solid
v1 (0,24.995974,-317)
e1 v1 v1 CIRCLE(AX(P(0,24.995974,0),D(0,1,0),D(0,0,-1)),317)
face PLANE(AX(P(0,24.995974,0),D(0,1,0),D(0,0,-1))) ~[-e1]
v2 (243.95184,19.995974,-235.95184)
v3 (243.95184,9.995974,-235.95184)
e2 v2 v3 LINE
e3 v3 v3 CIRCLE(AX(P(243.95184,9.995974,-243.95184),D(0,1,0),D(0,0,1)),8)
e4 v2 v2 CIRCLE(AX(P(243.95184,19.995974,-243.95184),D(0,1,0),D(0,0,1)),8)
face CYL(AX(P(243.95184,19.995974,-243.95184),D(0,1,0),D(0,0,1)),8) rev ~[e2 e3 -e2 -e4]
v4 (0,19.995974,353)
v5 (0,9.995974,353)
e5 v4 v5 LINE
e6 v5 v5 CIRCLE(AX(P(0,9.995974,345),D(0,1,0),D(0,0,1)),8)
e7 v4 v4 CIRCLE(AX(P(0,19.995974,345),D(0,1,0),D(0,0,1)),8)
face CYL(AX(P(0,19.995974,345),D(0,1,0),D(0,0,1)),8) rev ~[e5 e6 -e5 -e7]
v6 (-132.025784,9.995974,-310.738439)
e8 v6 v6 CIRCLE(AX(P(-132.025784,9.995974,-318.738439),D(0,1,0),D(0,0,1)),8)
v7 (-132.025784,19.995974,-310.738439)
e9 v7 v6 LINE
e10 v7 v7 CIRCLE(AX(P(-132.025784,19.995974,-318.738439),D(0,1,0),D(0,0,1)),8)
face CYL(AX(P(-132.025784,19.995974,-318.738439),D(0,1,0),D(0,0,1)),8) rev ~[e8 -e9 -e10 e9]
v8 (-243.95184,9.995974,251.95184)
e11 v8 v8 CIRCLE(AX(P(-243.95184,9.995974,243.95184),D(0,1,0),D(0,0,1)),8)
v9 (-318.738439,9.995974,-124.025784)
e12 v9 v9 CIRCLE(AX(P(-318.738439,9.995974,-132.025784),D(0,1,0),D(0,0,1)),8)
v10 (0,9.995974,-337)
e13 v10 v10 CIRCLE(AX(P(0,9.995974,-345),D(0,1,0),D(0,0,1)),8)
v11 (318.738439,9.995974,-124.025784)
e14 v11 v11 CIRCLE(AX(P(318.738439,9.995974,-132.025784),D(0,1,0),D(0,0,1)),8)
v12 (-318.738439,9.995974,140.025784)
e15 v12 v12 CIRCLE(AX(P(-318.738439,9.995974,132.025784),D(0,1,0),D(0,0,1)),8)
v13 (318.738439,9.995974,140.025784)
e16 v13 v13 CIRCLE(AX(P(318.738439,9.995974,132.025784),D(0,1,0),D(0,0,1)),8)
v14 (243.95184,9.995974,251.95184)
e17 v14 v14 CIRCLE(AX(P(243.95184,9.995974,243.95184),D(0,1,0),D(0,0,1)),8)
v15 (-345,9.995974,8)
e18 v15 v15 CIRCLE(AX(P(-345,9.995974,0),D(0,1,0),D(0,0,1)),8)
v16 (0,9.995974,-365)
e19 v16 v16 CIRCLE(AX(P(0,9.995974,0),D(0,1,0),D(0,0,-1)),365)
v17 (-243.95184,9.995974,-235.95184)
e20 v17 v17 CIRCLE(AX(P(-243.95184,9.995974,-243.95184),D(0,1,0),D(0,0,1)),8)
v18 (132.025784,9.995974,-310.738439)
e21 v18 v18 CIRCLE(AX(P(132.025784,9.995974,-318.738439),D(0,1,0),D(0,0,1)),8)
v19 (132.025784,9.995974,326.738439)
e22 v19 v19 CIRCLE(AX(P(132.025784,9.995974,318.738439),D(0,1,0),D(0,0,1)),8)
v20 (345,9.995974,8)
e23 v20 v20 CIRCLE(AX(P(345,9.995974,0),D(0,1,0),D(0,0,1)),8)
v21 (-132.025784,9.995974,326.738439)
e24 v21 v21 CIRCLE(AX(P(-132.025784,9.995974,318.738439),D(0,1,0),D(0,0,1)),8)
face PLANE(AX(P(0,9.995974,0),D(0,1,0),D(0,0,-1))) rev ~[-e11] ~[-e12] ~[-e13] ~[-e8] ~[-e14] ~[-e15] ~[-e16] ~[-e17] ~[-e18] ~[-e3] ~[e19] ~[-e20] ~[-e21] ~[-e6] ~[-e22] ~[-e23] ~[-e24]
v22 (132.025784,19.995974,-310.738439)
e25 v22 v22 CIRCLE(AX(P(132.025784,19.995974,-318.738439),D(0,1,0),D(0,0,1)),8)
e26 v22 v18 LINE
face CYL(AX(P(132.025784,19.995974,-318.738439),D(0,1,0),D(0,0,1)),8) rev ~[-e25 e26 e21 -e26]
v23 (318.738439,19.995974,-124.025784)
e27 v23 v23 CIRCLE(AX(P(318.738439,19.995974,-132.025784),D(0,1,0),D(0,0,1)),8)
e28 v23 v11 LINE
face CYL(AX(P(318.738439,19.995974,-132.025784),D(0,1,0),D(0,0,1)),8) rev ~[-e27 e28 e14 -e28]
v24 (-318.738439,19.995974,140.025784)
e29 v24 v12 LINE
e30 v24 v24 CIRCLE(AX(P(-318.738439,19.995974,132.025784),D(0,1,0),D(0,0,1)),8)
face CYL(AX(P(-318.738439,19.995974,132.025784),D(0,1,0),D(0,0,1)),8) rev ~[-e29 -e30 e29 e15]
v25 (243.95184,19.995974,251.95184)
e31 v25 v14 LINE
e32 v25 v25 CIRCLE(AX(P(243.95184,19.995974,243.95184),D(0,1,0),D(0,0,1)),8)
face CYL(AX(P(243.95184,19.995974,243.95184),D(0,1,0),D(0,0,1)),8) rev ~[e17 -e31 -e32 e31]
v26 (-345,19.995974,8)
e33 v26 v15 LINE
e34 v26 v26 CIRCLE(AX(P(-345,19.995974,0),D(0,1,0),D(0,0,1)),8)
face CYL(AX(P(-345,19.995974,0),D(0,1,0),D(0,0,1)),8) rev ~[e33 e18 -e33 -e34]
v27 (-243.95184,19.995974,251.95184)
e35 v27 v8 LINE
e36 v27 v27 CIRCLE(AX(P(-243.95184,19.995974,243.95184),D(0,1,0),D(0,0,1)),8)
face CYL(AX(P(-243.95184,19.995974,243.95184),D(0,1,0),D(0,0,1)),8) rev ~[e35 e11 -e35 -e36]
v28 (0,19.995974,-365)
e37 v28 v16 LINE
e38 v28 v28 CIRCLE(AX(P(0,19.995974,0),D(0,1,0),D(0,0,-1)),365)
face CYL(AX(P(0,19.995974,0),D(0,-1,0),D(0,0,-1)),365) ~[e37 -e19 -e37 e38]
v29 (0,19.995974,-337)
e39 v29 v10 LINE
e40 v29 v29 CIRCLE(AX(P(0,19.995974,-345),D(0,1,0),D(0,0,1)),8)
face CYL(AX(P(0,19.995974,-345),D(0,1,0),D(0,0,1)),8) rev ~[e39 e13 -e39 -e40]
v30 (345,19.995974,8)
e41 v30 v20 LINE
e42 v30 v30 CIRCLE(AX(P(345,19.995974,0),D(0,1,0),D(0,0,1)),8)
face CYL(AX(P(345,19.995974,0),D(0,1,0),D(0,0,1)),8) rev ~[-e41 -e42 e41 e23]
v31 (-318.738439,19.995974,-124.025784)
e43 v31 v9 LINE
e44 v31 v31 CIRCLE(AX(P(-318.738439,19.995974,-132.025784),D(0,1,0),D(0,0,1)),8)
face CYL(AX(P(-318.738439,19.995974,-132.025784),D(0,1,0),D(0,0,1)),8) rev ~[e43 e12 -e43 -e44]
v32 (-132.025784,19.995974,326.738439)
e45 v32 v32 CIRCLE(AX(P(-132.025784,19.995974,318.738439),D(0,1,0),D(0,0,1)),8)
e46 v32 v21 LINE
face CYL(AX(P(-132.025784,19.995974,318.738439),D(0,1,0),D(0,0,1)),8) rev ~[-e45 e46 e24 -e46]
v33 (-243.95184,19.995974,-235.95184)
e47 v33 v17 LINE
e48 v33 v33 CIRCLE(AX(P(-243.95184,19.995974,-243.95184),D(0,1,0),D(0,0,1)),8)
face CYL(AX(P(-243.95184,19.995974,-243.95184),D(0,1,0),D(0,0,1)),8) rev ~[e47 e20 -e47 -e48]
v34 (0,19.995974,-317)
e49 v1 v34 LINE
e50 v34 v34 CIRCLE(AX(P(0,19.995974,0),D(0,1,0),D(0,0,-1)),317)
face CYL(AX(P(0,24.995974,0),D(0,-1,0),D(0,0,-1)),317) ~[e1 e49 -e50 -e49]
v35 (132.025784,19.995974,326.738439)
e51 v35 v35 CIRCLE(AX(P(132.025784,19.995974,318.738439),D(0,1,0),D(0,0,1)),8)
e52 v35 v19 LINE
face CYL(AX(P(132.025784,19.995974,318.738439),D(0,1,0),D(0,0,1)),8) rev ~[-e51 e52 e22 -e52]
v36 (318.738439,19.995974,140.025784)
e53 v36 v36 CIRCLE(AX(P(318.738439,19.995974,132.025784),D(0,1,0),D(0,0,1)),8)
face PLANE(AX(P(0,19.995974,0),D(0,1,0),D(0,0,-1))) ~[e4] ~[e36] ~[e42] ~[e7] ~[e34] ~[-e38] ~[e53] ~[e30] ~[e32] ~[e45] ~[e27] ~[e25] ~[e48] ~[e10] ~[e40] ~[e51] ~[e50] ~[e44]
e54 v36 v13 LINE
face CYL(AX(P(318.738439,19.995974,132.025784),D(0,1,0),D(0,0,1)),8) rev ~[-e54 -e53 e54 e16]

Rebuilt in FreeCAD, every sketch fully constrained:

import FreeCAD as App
import Part
import Sketcher
Q = App.Units.Quantity

doc = App.newDocument("Part")
body = doc.addObject("PartDesign::Body", "Body")

# Sketch on YZ plane
sketch1 = body.newObject("Sketcher::SketchObject", "Sketch")
sketch1.AttachmentSupport = (doc.getObject("YZ_Plane"), [""])
sketch1.MapMode = "FlatFace"
sketch1.addGeometry([
    Part.LineSegment(App.Vector(20, 365, 0), App.Vector(10, 365, 0)),  # 0
    Part.LineSegment(App.Vector(10, 365, 0), App.Vector(10, 0, 0)),  # 1
    Part.LineSegment(App.Vector(10, 0, 0), App.Vector(25, 0, 0)),  # 2
    Part.LineSegment(App.Vector(25, 0, 0), App.Vector(25, 317, 0)),  # 3
    Part.LineSegment(App.Vector(25, 317, 0), App.Vector(20, 317, 0)),  # 4
    Part.LineSegment(App.Vector(20, 317, 0), App.Vector(20, 365, 0)),  # 5
], False)
sketch1.addConstraint([
    Sketcher.Constraint("Coincident", 0, 2, 1, 1),
    Sketcher.Constraint("Coincident", 1, 2, 2, 1),
    Sketcher.Constraint("Coincident", 2, 2, 3, 1),
    Sketcher.Constraint("Coincident", 3, 2, 4, 1),
    Sketcher.Constraint("Coincident", 4, 2, 5, 1),
    Sketcher.Constraint("Coincident", 5, 2, 0, 1),
    Sketcher.Constraint("Horizontal", 0),
    Sketcher.Constraint("Vertical", 1),
    Sketcher.Constraint("Horizontal", 2),
    Sketcher.Constraint("Vertical", 3),
    Sketcher.Constraint("Horizontal", 4),
    Sketcher.Constraint("Vertical", 5),
    Sketcher.Constraint("PointOnObject", 1, 2, -1),
    Sketcher.Constraint("DistanceX", 0, 2, 0, 1, Q("10 mm")),
    Sketcher.Constraint("DistanceX", 2, 1, 2, 2, Q("15 mm")),
    Sketcher.Constraint("DistanceY", 1, 2, 1, 1, Q("365 mm")),
    Sketcher.Constraint("DistanceY", 3, 1, 3, 2, Q("317 mm")),
    Sketcher.Constraint("DistanceX", -1, 1, 0, 2, Q("9.995974 mm")),
])
revolution = body.newObject("PartDesign::Revolution", "Revolution")
revolution.Profile = sketch1
revolution.ReferenceAxis = (sketch1, ["H_Axis"])
revolution.Angle = 360

# Sketch on XZ plane
sketch2 = body.newObject("Sketcher::SketchObject", "Sketch001")
sketch2.AttachmentSupport = (doc.getObject("XZ_Plane"), [""])
sketch2.MapMode = "FlatFace"
sketch2.AttachmentOffset = App.Placement(App.Vector(0, 0, -19.995974), App.Rotation())
sketch2.addGeometry([
    Part.Circle(App.Vector(0, -345, 0), App.Vector(0, 0, 1), 8),  # 0
    Part.Circle(App.Vector(132, -319, 0), App.Vector(0, 0, 1), 8),  # 1
    Part.Circle(App.Vector(244, -244, 0), App.Vector(0, 0, 1), 8),  # 2
    Part.Circle(App.Vector(319, -132, 0), App.Vector(0, 0, 1), 8),  # 3
    Part.Circle(App.Vector(345, 0, 0), App.Vector(0, 0, 1), 8),  # 4
    Part.Circle(App.Vector(319, 132, 0), App.Vector(0, 0, 1), 8),  # 5
    Part.Circle(App.Vector(244, 244, 0), App.Vector(0, 0, 1), 8),  # 6
    Part.Circle(App.Vector(132, 319, 0), App.Vector(0, 0, 1), 8),  # 7
    Part.Circle(App.Vector(0, 345, 0), App.Vector(0, 0, 1), 8),  # 8
    Part.Circle(App.Vector(-132, 319, 0), App.Vector(0, 0, 1), 8),  # 9
    Part.Circle(App.Vector(-244, 244, 0), App.Vector(0, 0, 1), 8),  # 10
    Part.Circle(App.Vector(-319, 132, 0), App.Vector(0, 0, 1), 8),  # 11
    Part.Circle(App.Vector(-345, 0, 0), App.Vector(0, 0, 1), 8),  # 12
    Part.Circle(App.Vector(-319, -132, 0), App.Vector(0, 0, 1), 8),  # 13
    Part.Circle(App.Vector(-244, -244, 0), App.Vector(0, 0, 1), 8),  # 14
    Part.Circle(App.Vector(-132, -319, 0), App.Vector(0, 0, 1), 8),  # 15
], False)
sketch2.addConstraint([
    Sketcher.Constraint("Equal", 0, 1),
    Sketcher.Constraint("Equal", 1, 2),
    Sketcher.Constraint("Equal", 2, 3),
    Sketcher.Constraint("Equal", 3, 4),
    Sketcher.Constraint("Equal", 4, 5),
    Sketcher.Constraint("Equal", 5, 6),
    Sketcher.Constraint("Equal", 6, 7),
    Sketcher.Constraint("Equal", 7, 8),
    Sketcher.Constraint("Equal", 8, 9),
    Sketcher.Constraint("Equal", 9, 10),
    Sketcher.Constraint("Equal", 10, 11),
    Sketcher.Constraint("Equal", 11, 12),
    Sketcher.Constraint("Equal", 12, 13),
    Sketcher.Constraint("Equal", 13, 14),
    Sketcher.Constraint("Equal", 14, 15),
    Sketcher.Constraint("Symmetric", 0, 3, 8, 3, -1, 1),
    Sketcher.Constraint("Symmetric", 1, 3, 9, 3, -1, 1),
    Sketcher.Constraint("Symmetric", 2, 3, 10, 3, -1, 1),
    Sketcher.Constraint("Symmetric", 3, 3, 11, 3, -1, 1),
    Sketcher.Constraint("Symmetric", 4, 3, 12, 3, -1, 1),
    Sketcher.Constraint("Symmetric", 5, 3, 13, 3, -1, 1),
    Sketcher.Constraint("Symmetric", 6, 3, 14, 3, -1, 1),
    Sketcher.Constraint("Symmetric", 7, 3, 15, 3, -1, 1),
    Sketcher.Constraint("Symmetric", 7, 3, 9, 3, -2),
    Sketcher.Constraint("Symmetric", 6, 3, 10, 3, -2),
    Sketcher.Constraint("Symmetric", 5, 3, 11, 3, -2),
    Sketcher.Constraint("PointOnObject", 0, 3, -2),
    Sketcher.Constraint("PointOnObject", 4, 3, -1),
    Sketcher.Constraint("Diameter", 0, Q("16 mm")),
    Sketcher.Constraint("DistanceY", 0, 3, -1, 1, Q("345 mm")),
    Sketcher.Constraint("DistanceX", -1, 1, 4, 3, Q("345 mm")),
    Sketcher.Constraint("DistanceY", 1, 3, 2, 3, Q("74.786599 mm")),
    Sketcher.Constraint("DistanceX", 2, 3, 3, 3, Q("74.786599 mm")),
    Sketcher.Constraint("DistanceY", 1, 3, -1, 1, Q("318.738439 mm")),
    Sketcher.Constraint("DistanceX", -1, 1, 2, 3, Q("243.95184 mm")),
    Sketcher.Constraint("DistanceY", 3, 3, 5, 3, Q("264.051568 mm")),
    Sketcher.Constraint("DistanceX", 9, 3, 7, 3, Q("264.051568 mm")),
])
pocket1 = body.newObject("PartDesign::Pocket", "Pocket")
pocket1.Profile = sketch2
pocket1.Type = "ThroughAll"
pocket1.Reversed = True

doc.recompute()
